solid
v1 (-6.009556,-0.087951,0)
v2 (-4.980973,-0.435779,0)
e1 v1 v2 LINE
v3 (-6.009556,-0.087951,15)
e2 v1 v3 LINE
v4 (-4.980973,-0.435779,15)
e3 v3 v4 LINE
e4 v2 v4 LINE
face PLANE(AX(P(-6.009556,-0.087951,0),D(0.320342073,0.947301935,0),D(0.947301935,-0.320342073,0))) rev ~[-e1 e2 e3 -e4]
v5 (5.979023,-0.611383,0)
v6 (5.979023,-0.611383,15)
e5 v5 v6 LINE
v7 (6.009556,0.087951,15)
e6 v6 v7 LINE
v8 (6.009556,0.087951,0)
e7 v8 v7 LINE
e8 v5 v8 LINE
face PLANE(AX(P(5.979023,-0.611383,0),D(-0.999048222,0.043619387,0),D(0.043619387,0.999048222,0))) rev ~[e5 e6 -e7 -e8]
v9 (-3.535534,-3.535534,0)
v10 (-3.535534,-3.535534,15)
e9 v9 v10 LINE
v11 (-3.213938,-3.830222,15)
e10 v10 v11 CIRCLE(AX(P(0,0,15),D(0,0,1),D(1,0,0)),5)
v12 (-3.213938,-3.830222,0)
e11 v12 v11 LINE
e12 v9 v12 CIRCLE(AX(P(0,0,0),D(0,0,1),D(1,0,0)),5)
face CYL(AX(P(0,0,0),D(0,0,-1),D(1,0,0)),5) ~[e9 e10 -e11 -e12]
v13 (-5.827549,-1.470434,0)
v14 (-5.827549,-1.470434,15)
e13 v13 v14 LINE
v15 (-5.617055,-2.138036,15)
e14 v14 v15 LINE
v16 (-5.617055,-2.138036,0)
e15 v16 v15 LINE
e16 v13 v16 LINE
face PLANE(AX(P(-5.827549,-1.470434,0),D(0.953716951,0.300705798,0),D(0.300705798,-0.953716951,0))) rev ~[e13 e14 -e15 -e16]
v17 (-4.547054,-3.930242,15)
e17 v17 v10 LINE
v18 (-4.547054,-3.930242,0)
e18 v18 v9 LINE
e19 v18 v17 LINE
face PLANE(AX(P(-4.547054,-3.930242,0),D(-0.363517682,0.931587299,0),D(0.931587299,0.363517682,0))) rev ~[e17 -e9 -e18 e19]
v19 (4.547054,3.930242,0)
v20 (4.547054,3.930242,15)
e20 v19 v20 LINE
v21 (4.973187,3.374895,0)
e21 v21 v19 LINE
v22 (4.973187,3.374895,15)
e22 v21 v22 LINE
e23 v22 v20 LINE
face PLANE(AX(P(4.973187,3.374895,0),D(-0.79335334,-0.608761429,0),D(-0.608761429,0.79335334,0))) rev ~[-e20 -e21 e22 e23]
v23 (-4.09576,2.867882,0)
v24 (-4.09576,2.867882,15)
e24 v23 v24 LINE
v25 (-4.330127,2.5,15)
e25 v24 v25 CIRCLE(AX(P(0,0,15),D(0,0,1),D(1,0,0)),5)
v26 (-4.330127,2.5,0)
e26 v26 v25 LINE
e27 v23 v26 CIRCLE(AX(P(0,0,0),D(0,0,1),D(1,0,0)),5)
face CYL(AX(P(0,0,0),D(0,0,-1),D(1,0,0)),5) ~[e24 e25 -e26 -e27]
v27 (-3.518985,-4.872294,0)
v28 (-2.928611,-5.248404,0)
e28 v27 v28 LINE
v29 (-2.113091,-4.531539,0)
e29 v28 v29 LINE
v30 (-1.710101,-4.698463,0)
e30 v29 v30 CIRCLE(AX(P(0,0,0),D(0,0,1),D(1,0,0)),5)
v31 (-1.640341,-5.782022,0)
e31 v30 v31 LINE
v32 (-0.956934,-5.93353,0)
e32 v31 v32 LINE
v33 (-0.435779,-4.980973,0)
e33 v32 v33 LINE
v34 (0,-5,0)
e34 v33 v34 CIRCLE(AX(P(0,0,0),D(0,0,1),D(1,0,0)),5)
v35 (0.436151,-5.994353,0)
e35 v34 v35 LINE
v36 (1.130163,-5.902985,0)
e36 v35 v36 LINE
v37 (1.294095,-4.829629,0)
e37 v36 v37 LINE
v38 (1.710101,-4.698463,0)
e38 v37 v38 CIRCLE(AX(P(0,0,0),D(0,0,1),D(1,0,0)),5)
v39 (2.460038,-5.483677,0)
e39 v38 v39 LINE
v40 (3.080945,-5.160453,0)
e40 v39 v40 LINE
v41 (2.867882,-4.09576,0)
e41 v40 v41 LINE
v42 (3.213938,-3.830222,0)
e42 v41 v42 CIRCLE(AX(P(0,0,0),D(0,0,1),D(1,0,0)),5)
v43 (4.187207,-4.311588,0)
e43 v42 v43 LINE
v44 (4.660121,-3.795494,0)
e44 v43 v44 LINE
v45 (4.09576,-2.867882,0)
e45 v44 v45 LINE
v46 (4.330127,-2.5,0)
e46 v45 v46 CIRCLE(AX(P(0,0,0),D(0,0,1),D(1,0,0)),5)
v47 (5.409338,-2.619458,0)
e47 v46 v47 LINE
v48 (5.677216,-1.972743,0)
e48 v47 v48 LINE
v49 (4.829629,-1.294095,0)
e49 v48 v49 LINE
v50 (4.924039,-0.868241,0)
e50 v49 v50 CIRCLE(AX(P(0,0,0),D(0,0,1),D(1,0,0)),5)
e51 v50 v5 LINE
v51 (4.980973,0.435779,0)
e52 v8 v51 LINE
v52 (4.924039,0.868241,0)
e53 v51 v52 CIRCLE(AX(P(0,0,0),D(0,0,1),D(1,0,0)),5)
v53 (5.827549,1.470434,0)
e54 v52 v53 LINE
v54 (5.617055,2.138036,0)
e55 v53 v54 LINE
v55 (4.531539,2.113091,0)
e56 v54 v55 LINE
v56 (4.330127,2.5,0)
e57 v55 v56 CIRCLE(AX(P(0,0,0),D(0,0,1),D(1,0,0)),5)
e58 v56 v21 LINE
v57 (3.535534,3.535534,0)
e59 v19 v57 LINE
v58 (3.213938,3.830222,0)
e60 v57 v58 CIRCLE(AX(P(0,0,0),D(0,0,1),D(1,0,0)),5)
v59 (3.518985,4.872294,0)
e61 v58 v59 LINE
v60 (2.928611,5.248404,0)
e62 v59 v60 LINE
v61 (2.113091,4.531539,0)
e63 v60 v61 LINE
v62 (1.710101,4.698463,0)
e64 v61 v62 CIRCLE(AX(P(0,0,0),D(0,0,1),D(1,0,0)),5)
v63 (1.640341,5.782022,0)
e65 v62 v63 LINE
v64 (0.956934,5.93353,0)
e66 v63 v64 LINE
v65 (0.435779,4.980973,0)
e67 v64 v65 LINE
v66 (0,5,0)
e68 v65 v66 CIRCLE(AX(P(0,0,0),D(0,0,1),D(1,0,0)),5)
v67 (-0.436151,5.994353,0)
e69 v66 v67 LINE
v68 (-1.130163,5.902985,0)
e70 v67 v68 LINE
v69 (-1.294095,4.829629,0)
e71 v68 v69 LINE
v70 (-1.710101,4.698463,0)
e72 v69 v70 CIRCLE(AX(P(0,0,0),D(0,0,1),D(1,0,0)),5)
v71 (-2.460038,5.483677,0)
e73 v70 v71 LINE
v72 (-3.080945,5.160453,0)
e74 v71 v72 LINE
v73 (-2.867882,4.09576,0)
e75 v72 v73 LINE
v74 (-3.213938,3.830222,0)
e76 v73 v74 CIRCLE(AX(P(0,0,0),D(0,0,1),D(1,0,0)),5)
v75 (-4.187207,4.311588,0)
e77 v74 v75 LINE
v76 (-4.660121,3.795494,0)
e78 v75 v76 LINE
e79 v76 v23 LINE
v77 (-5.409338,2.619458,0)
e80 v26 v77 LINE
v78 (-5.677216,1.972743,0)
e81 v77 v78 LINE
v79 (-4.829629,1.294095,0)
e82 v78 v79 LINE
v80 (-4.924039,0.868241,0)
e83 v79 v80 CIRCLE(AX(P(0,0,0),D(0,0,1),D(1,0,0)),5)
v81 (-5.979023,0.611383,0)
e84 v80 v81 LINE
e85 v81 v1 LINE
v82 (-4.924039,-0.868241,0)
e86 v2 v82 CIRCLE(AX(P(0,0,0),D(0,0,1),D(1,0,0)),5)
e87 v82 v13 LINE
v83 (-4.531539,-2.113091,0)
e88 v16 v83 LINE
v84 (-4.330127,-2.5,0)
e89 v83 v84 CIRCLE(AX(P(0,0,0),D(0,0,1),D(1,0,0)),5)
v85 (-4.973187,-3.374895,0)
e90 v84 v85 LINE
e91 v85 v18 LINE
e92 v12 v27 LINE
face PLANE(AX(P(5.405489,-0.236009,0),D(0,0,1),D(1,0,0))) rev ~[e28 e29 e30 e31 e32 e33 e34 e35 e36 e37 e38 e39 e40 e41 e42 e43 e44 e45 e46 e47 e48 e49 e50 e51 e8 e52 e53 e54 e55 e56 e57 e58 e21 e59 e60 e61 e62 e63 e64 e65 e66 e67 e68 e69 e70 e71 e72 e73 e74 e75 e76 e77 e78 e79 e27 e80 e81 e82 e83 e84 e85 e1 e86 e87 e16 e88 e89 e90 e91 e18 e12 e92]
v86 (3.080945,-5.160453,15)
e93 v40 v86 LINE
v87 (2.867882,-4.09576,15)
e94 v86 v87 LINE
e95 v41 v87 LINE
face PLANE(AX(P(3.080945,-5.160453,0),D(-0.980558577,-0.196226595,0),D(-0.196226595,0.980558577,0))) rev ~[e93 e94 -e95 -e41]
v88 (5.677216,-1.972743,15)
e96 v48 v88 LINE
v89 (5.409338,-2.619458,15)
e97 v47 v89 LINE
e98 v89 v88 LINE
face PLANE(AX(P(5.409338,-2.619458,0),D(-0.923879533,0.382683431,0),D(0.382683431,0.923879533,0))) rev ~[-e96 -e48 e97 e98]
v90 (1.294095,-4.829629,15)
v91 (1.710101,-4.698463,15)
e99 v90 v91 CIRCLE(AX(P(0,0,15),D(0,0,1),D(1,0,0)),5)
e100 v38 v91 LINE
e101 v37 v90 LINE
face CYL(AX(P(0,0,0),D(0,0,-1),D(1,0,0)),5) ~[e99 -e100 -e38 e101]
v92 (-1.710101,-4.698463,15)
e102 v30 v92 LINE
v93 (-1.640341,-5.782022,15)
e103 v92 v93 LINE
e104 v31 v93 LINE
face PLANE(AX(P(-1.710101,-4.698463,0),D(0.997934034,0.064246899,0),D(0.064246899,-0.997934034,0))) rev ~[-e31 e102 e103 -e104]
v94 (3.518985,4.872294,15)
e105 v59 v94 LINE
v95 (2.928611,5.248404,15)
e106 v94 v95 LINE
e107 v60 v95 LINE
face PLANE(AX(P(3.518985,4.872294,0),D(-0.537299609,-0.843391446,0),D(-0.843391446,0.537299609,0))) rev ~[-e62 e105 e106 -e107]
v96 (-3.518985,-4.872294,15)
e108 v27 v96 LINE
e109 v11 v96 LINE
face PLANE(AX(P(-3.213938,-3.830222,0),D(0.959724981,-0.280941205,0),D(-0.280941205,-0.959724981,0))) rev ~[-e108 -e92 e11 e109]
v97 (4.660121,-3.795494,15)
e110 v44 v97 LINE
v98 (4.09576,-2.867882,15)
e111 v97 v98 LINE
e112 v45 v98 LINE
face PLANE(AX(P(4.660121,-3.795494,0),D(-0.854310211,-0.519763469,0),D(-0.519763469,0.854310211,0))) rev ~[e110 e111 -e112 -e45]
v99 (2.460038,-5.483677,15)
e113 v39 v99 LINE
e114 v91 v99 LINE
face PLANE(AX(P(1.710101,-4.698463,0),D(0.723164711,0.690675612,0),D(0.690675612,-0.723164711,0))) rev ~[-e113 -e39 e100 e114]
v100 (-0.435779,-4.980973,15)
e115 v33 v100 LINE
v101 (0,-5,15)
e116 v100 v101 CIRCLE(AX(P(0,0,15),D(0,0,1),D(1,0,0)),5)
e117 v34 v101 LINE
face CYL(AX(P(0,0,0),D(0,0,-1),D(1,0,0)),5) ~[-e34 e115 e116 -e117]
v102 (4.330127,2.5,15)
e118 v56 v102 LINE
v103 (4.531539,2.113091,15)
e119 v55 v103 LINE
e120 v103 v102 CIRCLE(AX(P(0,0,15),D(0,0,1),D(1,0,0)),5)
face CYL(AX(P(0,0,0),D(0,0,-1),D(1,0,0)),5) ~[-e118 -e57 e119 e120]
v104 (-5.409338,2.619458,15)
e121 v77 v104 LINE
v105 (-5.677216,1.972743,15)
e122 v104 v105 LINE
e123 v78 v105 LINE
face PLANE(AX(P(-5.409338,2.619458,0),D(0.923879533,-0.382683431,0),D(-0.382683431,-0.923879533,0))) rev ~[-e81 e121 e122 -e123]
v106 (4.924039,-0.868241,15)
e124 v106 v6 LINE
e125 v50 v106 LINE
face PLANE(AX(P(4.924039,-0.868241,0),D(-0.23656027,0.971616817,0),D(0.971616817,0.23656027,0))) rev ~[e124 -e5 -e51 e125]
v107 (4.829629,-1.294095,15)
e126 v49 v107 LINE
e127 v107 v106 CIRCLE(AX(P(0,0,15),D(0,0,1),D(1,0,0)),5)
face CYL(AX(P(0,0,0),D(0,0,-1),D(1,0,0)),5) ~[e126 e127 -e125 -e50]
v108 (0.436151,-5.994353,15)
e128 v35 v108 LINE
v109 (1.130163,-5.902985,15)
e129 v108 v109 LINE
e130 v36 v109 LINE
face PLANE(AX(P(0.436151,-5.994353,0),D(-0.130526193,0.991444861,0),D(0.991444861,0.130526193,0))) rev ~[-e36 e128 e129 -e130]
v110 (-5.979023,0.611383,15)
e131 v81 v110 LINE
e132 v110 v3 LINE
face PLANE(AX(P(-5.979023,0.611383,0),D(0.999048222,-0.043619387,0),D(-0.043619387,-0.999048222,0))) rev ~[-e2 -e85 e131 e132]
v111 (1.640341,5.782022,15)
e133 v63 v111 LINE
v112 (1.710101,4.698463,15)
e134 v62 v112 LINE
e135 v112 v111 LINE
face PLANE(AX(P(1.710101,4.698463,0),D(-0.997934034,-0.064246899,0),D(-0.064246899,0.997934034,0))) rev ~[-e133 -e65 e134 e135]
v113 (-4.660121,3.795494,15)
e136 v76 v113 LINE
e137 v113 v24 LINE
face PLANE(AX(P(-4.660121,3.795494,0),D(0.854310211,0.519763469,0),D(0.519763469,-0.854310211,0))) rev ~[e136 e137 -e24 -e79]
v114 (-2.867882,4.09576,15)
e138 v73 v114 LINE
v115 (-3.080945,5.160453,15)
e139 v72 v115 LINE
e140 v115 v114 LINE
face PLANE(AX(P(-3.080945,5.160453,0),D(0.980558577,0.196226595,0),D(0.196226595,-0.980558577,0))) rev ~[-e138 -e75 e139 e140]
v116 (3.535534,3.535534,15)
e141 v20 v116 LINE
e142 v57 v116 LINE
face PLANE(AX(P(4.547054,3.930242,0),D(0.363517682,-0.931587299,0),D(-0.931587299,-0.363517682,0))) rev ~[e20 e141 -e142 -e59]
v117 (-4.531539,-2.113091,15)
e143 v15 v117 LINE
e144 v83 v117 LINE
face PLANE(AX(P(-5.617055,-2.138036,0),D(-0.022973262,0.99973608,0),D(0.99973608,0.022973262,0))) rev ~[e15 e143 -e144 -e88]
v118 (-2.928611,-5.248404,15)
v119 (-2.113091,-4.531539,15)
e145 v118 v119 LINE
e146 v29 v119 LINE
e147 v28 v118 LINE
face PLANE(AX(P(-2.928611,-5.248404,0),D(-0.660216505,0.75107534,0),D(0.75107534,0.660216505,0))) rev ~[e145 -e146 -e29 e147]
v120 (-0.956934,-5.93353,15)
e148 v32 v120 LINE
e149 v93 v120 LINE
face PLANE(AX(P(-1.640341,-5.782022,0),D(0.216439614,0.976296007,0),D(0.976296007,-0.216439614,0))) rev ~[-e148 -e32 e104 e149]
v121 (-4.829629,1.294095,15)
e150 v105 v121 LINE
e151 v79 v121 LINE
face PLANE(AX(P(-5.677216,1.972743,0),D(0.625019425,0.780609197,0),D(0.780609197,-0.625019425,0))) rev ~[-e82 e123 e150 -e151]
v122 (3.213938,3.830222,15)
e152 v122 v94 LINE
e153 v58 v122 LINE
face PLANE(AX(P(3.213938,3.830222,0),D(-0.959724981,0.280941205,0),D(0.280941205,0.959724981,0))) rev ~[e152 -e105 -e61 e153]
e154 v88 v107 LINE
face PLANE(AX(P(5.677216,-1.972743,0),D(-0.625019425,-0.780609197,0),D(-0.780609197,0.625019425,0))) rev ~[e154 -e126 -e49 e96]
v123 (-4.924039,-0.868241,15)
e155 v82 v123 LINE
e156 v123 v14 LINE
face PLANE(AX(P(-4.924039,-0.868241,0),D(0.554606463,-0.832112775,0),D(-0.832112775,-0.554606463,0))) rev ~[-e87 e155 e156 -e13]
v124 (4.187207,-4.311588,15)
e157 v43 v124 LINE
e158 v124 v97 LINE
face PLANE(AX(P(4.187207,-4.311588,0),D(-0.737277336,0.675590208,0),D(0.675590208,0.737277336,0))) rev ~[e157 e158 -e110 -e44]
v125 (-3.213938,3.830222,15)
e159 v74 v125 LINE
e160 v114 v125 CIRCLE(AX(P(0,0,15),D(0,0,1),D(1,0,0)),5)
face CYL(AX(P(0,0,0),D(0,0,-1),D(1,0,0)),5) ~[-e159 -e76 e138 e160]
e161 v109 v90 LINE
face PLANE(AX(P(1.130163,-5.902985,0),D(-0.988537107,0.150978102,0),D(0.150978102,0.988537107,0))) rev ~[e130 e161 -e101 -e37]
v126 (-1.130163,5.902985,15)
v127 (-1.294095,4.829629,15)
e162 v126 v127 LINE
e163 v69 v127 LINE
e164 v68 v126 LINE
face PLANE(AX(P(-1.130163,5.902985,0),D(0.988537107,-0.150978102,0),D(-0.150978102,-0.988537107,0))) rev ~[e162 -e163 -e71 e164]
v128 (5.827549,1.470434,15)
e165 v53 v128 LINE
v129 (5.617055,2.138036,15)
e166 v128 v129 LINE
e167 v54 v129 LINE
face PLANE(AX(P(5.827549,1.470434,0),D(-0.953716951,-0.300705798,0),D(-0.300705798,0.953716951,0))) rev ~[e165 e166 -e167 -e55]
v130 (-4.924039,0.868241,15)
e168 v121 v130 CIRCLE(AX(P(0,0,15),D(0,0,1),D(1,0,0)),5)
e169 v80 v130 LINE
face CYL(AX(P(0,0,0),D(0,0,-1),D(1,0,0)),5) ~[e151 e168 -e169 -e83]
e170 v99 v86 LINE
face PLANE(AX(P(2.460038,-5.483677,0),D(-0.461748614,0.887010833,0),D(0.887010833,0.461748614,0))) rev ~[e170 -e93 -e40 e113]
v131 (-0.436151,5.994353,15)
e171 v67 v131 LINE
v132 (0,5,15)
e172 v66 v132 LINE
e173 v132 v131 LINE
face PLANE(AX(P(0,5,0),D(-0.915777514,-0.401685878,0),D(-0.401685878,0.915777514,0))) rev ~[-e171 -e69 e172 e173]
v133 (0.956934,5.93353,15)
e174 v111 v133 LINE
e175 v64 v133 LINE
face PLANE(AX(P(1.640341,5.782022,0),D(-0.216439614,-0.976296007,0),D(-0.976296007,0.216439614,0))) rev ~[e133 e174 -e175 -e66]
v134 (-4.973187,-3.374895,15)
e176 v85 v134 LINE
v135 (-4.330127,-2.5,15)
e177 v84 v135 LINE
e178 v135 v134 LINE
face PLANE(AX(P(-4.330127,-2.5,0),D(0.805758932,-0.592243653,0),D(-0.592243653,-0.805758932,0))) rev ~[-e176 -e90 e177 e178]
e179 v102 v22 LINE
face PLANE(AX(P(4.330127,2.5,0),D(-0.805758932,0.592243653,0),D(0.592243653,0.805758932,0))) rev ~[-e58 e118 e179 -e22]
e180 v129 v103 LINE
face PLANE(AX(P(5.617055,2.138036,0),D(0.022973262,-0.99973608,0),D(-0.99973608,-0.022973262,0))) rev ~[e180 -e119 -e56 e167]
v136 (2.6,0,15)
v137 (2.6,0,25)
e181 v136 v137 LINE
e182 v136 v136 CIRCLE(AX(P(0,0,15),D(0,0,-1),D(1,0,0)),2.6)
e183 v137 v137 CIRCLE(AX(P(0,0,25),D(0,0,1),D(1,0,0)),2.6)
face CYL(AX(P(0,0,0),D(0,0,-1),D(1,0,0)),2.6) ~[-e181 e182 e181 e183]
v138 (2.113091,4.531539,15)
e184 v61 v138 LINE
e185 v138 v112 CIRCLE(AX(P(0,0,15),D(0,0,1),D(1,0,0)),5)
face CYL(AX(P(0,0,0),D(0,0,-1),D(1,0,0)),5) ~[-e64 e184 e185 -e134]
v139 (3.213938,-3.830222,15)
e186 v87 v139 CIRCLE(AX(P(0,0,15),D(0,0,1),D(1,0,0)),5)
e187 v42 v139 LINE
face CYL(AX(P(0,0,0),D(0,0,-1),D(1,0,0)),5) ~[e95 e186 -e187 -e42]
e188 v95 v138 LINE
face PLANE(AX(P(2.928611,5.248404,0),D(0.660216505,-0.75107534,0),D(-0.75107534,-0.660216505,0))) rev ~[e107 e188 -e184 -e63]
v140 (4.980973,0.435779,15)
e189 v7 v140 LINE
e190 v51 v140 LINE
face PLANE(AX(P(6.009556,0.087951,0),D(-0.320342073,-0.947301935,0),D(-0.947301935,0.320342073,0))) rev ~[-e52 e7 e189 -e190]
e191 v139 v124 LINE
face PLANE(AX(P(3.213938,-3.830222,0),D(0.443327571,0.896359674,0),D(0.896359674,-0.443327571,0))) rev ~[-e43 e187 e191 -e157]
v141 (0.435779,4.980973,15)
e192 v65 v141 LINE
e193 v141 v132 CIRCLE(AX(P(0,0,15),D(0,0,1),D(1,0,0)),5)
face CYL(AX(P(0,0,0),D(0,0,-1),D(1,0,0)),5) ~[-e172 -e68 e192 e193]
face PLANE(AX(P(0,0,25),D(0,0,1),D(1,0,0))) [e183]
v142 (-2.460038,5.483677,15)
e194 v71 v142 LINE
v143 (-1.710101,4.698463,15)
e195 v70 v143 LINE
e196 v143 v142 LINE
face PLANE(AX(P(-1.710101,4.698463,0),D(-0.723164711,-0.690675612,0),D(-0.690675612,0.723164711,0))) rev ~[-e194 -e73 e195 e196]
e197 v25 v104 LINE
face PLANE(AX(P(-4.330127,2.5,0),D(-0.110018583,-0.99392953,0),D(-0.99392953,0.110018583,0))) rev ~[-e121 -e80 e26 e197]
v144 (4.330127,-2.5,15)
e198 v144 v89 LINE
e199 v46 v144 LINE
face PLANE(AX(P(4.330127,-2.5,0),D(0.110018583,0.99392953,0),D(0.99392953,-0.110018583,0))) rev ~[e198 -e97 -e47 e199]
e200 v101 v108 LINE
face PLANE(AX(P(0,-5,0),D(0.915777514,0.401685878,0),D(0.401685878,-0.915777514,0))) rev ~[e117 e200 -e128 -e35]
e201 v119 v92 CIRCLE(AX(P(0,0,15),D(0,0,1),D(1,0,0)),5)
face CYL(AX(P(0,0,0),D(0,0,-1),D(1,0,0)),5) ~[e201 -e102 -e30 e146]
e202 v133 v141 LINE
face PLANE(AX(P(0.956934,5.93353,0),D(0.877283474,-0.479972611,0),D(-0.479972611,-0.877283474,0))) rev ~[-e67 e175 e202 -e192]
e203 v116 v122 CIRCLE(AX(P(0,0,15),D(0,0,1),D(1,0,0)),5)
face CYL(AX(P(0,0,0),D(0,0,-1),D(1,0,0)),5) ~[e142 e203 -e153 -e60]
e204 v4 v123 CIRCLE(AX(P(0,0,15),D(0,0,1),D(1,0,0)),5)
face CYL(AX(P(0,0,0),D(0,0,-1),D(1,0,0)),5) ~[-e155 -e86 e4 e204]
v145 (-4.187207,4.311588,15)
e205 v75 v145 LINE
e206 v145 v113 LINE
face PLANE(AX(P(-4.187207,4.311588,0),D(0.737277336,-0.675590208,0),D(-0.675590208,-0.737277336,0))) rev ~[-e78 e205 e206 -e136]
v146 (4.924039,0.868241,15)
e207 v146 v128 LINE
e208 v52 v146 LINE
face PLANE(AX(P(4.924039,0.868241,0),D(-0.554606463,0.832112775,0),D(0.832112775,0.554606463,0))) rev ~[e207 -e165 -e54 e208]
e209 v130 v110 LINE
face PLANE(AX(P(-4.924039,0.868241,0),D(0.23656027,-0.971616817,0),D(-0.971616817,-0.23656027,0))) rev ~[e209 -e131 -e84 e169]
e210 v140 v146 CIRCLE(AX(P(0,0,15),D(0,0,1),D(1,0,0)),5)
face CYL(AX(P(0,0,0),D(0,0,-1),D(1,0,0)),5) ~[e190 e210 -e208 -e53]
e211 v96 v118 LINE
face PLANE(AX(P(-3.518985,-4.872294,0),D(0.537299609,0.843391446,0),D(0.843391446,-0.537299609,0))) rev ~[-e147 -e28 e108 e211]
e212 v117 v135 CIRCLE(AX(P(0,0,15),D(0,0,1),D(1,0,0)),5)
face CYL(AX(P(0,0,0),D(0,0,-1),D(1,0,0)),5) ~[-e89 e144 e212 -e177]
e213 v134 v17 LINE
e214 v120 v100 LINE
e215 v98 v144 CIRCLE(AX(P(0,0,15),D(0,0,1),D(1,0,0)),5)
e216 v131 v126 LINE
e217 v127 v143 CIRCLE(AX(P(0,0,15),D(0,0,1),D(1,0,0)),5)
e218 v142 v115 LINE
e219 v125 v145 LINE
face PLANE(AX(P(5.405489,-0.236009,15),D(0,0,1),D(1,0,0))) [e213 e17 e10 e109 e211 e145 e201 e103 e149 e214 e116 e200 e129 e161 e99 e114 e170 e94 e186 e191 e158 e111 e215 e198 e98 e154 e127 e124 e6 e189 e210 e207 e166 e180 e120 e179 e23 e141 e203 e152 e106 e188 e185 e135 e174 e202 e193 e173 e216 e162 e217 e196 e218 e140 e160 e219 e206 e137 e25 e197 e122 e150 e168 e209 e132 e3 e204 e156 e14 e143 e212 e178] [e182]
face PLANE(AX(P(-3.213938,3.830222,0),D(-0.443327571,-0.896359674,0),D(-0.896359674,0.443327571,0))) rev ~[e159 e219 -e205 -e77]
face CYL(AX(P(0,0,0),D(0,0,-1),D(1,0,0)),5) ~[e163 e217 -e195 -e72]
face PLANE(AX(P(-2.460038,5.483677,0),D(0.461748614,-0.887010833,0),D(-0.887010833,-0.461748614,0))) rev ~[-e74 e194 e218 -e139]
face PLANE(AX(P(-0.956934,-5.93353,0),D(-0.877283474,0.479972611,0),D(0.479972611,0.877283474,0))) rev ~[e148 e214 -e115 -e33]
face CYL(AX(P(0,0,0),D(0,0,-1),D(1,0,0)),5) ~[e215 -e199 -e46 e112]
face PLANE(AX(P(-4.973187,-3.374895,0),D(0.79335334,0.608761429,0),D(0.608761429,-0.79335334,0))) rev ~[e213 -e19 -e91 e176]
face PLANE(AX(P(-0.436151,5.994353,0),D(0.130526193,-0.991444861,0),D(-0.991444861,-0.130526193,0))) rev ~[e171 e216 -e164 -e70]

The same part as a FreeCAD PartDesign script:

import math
import FreeCAD as App
import Part
import Sketcher

V = App.Vector
Q = App.Units.Quantity

doc = App.newDocument("Part")
body = doc.addObject("PartDesign::Body", "Body")

# Sketch on XY plane
sketch1 = body.newObject("Sketcher::SketchObject", "Sketch")
sketch1.AttachmentSupport = (doc.getObject("XY_Plane"), [""])
sketch1.MapMode = "FlatFace"
sketch1.addGeometry(Part.Circle(V(0, 0, 0), V(0, 0, 1), 5), False)
sketch1.addConstraint(Sketcher.Constraint("Coincident", 0, 3, -1, 1))
sketch1.addConstraint(Sketcher.Constraint("Diameter", 0, Q("10 mm")))
pad1 = body.newObject("PartDesign::Pad", "Pad")
pad1.Profile = sketch1
pad1.Length = 15

# Sketch on XY plane
sketch2 = body.newObject("Sketcher::SketchObject", "Sketch001")
sketch2.AttachmentSupport = (doc.getObject("XY_Plane"), [""])
sketch2.MapMode = "FlatFace"
sketch2.addGeometry(Part.Circle(V(0, 0, 0), V(0, 0, 1), 2.6), False)
sketch2.addConstraint(Sketcher.Constraint("Coincident", 0, 3, -1, 1))
sketch2.addConstraint(Sketcher.Constraint("Diameter", 0, Q("5.2 mm")))
pad2 = body.newObject("PartDesign::Pad", "Pad001")
pad2.Profile = sketch2
pad2.Length = 25

# Sketch on XY plane
sketch3 = body.newObject("Sketcher::SketchObject", "Sketch002")
sketch3.AttachmentSupport = (doc.getObject("XY_Plane"), [""])
sketch3.MapMode = "FlatFace"
sketch3.addGeometry(Part.LineSegment(V(-1.130163, 5.902985, 0), V(-0.436151, 5.994353, 0)), False)
sketch3.addGeometry(Part.LineSegment(V(-0.436151, 5.994353, 0), V(0, 5, 0)), False)
sketch3.addGeometry(Part.ArcOfCircle(Part.Circle(V(0, 0, 0), V(0, 0, 1), 5), math.radians(90), math.radians(105)), False)
sketch3.addGeometry(Part.LineSegment(V(-1.294095, 4.829629, 0), V(-1.130163, 5.902985, 0)), False)
sketch3.addGeometry(Part.LineSegment(V(-3.080945, 5.160453, 0), V(-2.460038, 5.483677, 0)), False)
sketch3.addGeometry(Part.LineSegment(V(-2.460038, 5.483677, 0), V(-1.710101, 4.698463, 0)), False)
sketch3.addGeometry(Part.ArcOfCircle(Part.Circle(V(0, 0, 0), V(0, 0, 1), 5), math.radians(110), math.radians(125)), False)
sketch3.addGeometry(Part.LineSegment(V(-2.867882, 4.09576, 0), V(-3.080945, 5.160453, 0)), False)
sketch3.addGeometry(Part.LineSegment(V(-4.660121, 3.795494, 0), V(-4.187207, 4.311588, 0)), False)
sketch3.addGeometry(Part.LineSegment(V(-4.187207, 4.311588, 0), V(-3.213938, 3.830222, 0)), False)
sketch3.addGeometry(Part.ArcOfCircle(Part.Circle(V(0, 0, 0), V(0, 0, 1), 5), math.radians(130), math.radians(145)), False)
sketch3.addGeometry(Part.LineSegment(V(-4.09576, 2.867882, 0), V(-4.660121, 3.795494, 0)), False)
sketch3.addGeometry(Part.LineSegment(V(-5.677216, 1.972743, 0), V(-5.409338, 2.619458, 0)), False)
sketch3.addGeometry(Part.LineSegment(V(-5.409338, 2.619458, 0), V(-4.330127, 2.5, 0)), False)
sketch3.addGeometry(Part.ArcOfCircle(Part.Circle(V(0, 0, 0), V(0, 0, 1), 5), math.radians(150), math.radians(165)), False)
sketch3.addGeometry(Part.LineSegment(V(-4.829629, 1.294095, 0), V(-5.677216, 1.972743, 0)), False)
sketch3.addGeometry(Part.LineSegment(V(-6.009556, -0.087951, 0), V(-5.979023, 0.611383, 0)), False)
sketch3.addGeometry(Part.LineSegment(V(-5.979023, 0.611383, 0), V(-4.924039, 0.868241, 0)), False)
sketch3.addGeometry(Part.ArcOfCircle(Part.Circle(V(0, 0, 0), V(0, 0, 1), 5), math.radians(170), math.radians(185)), False)
sketch3.addGeometry(Part.LineSegment(V(-4.980973, -0.435779, 0), V(-6.009556, -0.087951, 0)), False)
sketch3.addGeometry(Part.LineSegment(V(-5.617055, -2.138036, 0), V(-5.827549, -1.470434, 0)), False)
sketch3.addGeometry(Part.LineSegment(V(-5.827549, -1.470434, 0), V(-4.924039, -0.868241, 0)), False)
sketch3.addGeometry(Part.ArcOfCircle(Part.Circle(V(0, 0, 0), V(0, 0, 1), 5), math.radians(-170), math.radians(-155)), False)
sketch3.addGeometry(Part.LineSegment(V(-4.531539, -2.113091, 0), V(-5.617055, -2.138036, 0)), False)
sketch3.addGeometry(Part.LineSegment(V(-4.547054, -3.930242, 0), V(-4.973187, -3.374895, 0)), False)
sketch3.addGeometry(Part.LineSegment(V(-4.973187, -3.374895, 0), V(-4.330127, -2.5, 0)), False)
sketch3.addGeometry(Part.ArcOfCircle(Part.Circle(V(0, 0, 0), V(0, 0, 1), 5), math.radians(-150), math.radians(-135)), False)
sketch3.addGeometry(Part.LineSegment(V(-3.535534, -3.535534, 0), V(-4.547054, -3.930242, 0)), False)
sketch3.addGeometry(Part.LineSegment(V(-2.928611, -5.248404, 0), V(-3.518985, -4.872294, 0)), False)
sketch3.addGeometry(Part.LineSegment(V(-3.518985, -4.872294, 0), V(-3.213938, -3.830222, 0)), False)
sketch3.addGeometry(Part.ArcOfCircle(Part.Circle(V(0, 0, 0), V(0, 0, 1), 5), math.radians(-130), math.radians(-115)), False)
sketch3.addGeometry(Part.LineSegment(V(-2.113091, -4.531539, 0), V(-2.928611, -5.248404, 0)), False)
sketch3.addGeometry(Part.LineSegment(V(-0.956934, -5.93353, 0), V(-1.640341, -5.782022, 0)), False)
sketch3.addGeometry(Part.LineSegment(V(-1.640341, -5.782022, 0), V(-1.710101, -4.698463, 0)), False)
sketch3.addGeometry(Part.ArcOfCircle(Part.Circle(V(0, 0, 0), V(0, 0, 1), 5), math.radians(-110), math.radians(-95)), False)
sketch3.addGeometry(Part.LineSegment(V(-0.435779, -4.980973, 0), V(-0.956934, -5.93353, 0)), False)
sketch3.addGeometry(Part.LineSegment(V(1.130163, -5.902985, 0), V(0.436151, -5.994353, 0)), False)
sketch3.addGeometry(Part.LineSegment(V(0.436151, -5.994353, 0), V(0, -5, 0)), False)
sketch3.addGeometry(Part.ArcOfCircle(Part.Circle(V(0, 0, 0), V(0, 0, 1), 5), math.radians(-90), math.radians(-75)), False)
sketch3.addGeometry(Part.LineSegment(V(1.294095, -4.829629, 0), V(1.130163, -5.902985, 0)), False)
sketch3.addGeometry(Part.LineSegment(V(3.080945, -5.160453, 0), V(2.460038, -5.483677, 0)), False)
sketch3.addGeometry(Part.LineSegment(V(2.460038, -5.483677, 0), V(1.710101, -4.698463, 0)), False)
sketch3.addGeometry(Part.ArcOfCircle(Part.Circle(V(0, 0, 0), V(0, 0, 1), 5), math.radians(-70), math.radians(-55)), False)
sketch3.addGeometry(Part.LineSegment(V(2.867882, -4.09576, 0), V(3.080945, -5.160453, 0)), False)
sketch3.addGeometry(Part.LineSegment(V(4.660121, -3.795494, 0), V(4.187207, -4.311588, 0)), False)
sketch3.addGeometry(Part.LineSegment(V(4.187207, -4.311588, 0), V(3.213938, -3.830222, 0)), False)
sketch3.addGeometry(Part.ArcOfCircle(Part.Circle(V(0, 0, 0), V(0, 0, 1), 5), math.radians(-50), math.radians(-35)), False)
sketch3.addGeometry(Part.LineSegment(V(4.09576, -2.867882, 0), V(4.660121, -3.795494, 0)), False)
sketch3.addGeometry(Part.LineSegment(V(5.677216, -1.972743, 0), V(5.409338, -2.619458, 0)), False)
sketch3.addGeometry(Part.LineSegment(V(5.409338, -2.619458, 0), V(4.330127, -2.5, 0)), False)
sketch3.addGeometry(Part.ArcOfCircle(Part.Circle(V(0, 0, 0), V(0, 0, 1), 5), math.radians(-30), math.radians(-15)), False)
sketch3.addGeometry(Part.LineSegment(V(4.829629, -1.294095, 0), V(5.677216, -1.972743, 0)), False)
sketch3.addGeometry(Part.LineSegment(V(6.009556, 0.087951, 0), V(5.979023, -0.611383, 0)), False)
sketch3.addGeometry(Part.LineSegment(V(5.979023, -0.611383, 0), V(4.924039, -0.868241, 0)), False)
sketch3.addGeometry(Part.ArcOfCircle(Part.Circle(V(0, 0, 0), V(0, 0, 1), 5), math.radians(-10), math.radians(5)), False)
sketch3.addGeometry(Part.LineSegment(V(4.980973, 0.435779, 0), V(6.009556, 0.087951, 0)), False)
sketch3.addGeometry(Part.LineSegment(V(5.617055, 2.138036, 0), V(5.827549, 1.470434, 0)), False)
sketch3.addGeometry(Part.LineSegment(V(5.827549, 1.470434, 0), V(4.924039, 0.868241, 0)), False)
sketch3.addGeometry(Part.ArcOfCircle(Part.Circle(V(0, 0, 0), V(0, 0, 1), 5), math.radians(10), math.radians(25)), False)
sketch3.addGeometry(Part.LineSegment(V(4.531539, 2.113091, 0), V(5.617055, 2.138036, 0)), False)
sketch3.addGeometry(Part.LineSegment(V(4.547054, 3.930242, 0), V(4.973187, 3.374895, 0)), False)
sketch3.addGeometry(Part.LineSegment(V(4.973187, 3.374895, 0), V(4.330127, 2.5, 0)), False)
sketch3.addGeometry(Part.ArcOfCircle(Part.Circle(V(0, 0, 0), V(0, 0, 1), 5), math.radians(30), math.radians(45)), False)
sketch3.addGeometry(Part.LineSegment(V(3.535534, 3.535534, 0), V(4.547054, 3.930242, 0)), False)
sketch3.addGeometry(Part.LineSegment(V(2.928611, 5.248404, 0), V(3.518985, 4.872294, 0)), False)
sketch3.addGeometry(Part.LineSegment(V(3.518985, 4.872294, 0), V(3.213938, 3.830222, 0)), False)
sketch3.addGeometry(Part.ArcOfCircle(Part.Circle(V(0, 0, 0), V(0, 0, 1), 5), math.radians(50), math.radians(65)), False)
sketch3.addGeometry(Part.LineSegment(V(2.113091, 4.531539, 0), V(2.928611, 5.248404, 0)), False)
sketch3.addGeometry(Part.LineSegment(V(0.956934, 5.93353, 0), V(1.640341, 5.782022, 0)), False)
sketch3.addGeometry(Part.LineSegment(V(1.640341, 5.782022, 0), V(1.710101, 4.698463, 0)), False)
sketch3.addGeometry(Part.ArcOfCircle(Part.Circle(V(0, 0, 0), V(0, 0, 1), 5), math.radians(70), math.radians(85)), False)
sketch3.addGeometry(Part.LineSegment(V(0.435779, 4.980973, 0), V(0.956934, 5.93353, 0)), False)
sketch3.addConstraint(Sketcher.Constraint("Coincident", 0, 2, 1, 1))
sketch3.addConstraint(Sketcher.Constraint("Coincident", 1, 2, 2, 1))
sketch3.addConstraint(Sketcher.Constraint("Coincident", 2, 2, 3, 1))
sketch3.addConstraint(Sketcher.Constraint("Coincident", 3, 2, 0, 1))
sketch3.addConstraint(Sketcher.Constraint("Coincident", 4, 2, 5, 1))
sketch3.addConstraint(Sketcher.Constraint("Coincident", 5, 2, 6, 1))
sketch3.addConstraint(Sketcher.Constraint("Coincident", 6, 2, 7, 1))
sketch3.addConstraint(Sketcher.Constraint("Coincident", 7, 2, 4, 1))
sketch3.addConstraint(Sketcher.Constraint("Coincident", 8, 2, 9, 1))
sketch3.addConstraint(Sketcher.Constraint("Coincident", 9, 2, 10, 1))
sketch3.addConstraint(Sketcher.Constraint("Coincident", 10, 2, 11, 1))
sketch3.addConstraint(Sketcher.Constraint("Coincident", 11, 2, 8, 1))
sketch3.addConstraint(Sketcher.Constraint("Coincident", 12, 2, 13, 1))
sketch3.addConstraint(Sketcher.Constraint("Coincident", 13, 2, 14, 1))
sketch3.addConstraint(Sketcher.Constraint("Coincident", 14, 2, 15, 1))
sketch3.addConstraint(Sketcher.Constraint("Coincident", 15, 2, 12, 1))
sketch3.addConstraint(Sketcher.Constraint("Coincident", 16, 2, 17, 1))
sketch3.addConstraint(Sketcher.Constraint("Coincident", 17, 2, 18, 1))
sketch3.addConstraint(Sketcher.Constraint("Coincident", 18, 2, 19, 1))
sketch3.addConstraint(Sketcher.Constraint("Coincident", 19, 2, 16, 1))
sketch3.addConstraint(Sketcher.Constraint("Coincident", 20, 2, 21, 1))
sketch3.addConstraint(Sketcher.Constraint("Coincident", 21, 2, 22, 1))
sketch3.addConstraint(Sketcher.Constraint("Coincident", 22, 2, 23, 1))
sketch3.addConstraint(Sketcher.Constraint("Coincident", 23, 2, 20, 1))
sketch3.addConstraint(Sketcher.Constraint("Coincident", 24, 2, 25, 1))
sketch3.addConstraint(Sketcher.Constraint("Coincident", 25, 2, 26, 1))
sketch3.addConstraint(Sketcher.Constraint("Coincident", 26, 2, 27, 1))
sketch3.addConstraint(Sketcher.Constraint("Coincident", 27, 2, 24, 1))
sketch3.addConstraint(Sketcher.Constraint("Coincident", 28, 2, 29, 1))
sketch3.addConstraint(Sketcher.Constraint("Coincident", 29, 2, 30, 1))
sketch3.addConstraint(Sketcher.Constraint("Coincident", 30, 2, 31, 1))
sketch3.addConstraint(Sketcher.Constraint("Coincident", 31, 2, 28, 1))
sketch3.addConstraint(Sketcher.Constraint("Coincident", 32, 2, 33, 1))
sketch3.addConstraint(Sketcher.Constraint("Coincident", 33, 2, 34, 1))
sketch3.addConstraint(Sketcher.Constraint("Coincident", 34, 2, 35, 1))
sketch3.addConstraint(Sketcher.Constraint("Coincident", 35, 2, 32, 1))
sketch3.addConstraint(Sketcher.Constraint("Coincident", 36, 2, 37, 1))
sketch3.addConstraint(Sketcher.Constraint("Coincident", 37, 2, 38, 1))
sketch3.addConstraint(Sketcher.Constraint("Coincident", 38, 2, 39, 1))
sketch3.addConstraint(Sketcher.Constraint("Coincident", 39, 2, 36, 1))
sketch3.addConstraint(Sketcher.Constraint("Coincident", 40, 2, 41, 1))
sketch3.addConstraint(Sketcher.Constraint("Coincident", 41, 2, 42, 1))
sketch3.addConstraint(Sketcher.Constraint("Coincident", 42, 2, 43, 1))
sketch3.addConstraint(Sketcher.Constraint("Coincident", 43, 2, 40, 1))
sketch3.addConstraint(Sketcher.Constraint("Coincident", 44, 2, 45, 1))
sketch3.addConstraint(Sketcher.Constraint("Coincident", 45, 2, 46, 1))
sketch3.addConstraint(Sketcher.Constraint("Coincident", 46, 2, 47, 1))
sketch3.addConstraint(Sketcher.Constraint("Coincident", 47, 2, 44, 1))
sketch3.addConstraint(Sketcher.Constraint("Coincident", 48, 2, 49, 1))
sketch3.addConstraint(Sketcher.Constraint("Coincident", 49, 2, 50, 1))
sketch3.addConstraint(Sketcher.Constraint("Coincident", 50, 2, 51, 1))
sketch3.addConstraint(Sketcher.Constraint("Coincident", 51, 2, 48, 1))
sketch3.addConstraint(Sketcher.Constraint("Coincident", 52, 2, 53, 1))
sketch3.addConstraint(Sketcher.Constraint("Coincident", 53, 2, 54, 1))
sketch3.addConstraint(Sketcher.Constraint("Coincident", 54, 2, 55, 1))
sketch3.addConstraint(Sketcher.Constraint("Coincident", 55, 2, 52, 1))
sketch3.addConstraint(Sketcher.Constraint("Coincident", 56, 2, 57, 1))
sketch3.addConstraint(Sketcher.Constraint("Coincident", 57, 2, 58, 1))
sketch3.addConstraint(Sketcher.Constraint("Coincident", 58, 2, 59, 1))
sketch3.addConstraint(Sketcher.Constraint("Coincident", 59, 2, 56, 1))
sketch3.addConstraint(Sketcher.Constraint("Coincident", 60, 2, 61, 1))
sketch3.addConstraint(Sketcher.Constraint("Coincident", 61, 2, 62, 1))
sketch3.addConstraint(Sketcher.Constraint("Coincident", 62, 2, 63, 1))
sketch3.addConstraint(Sketcher.Constraint("Coincident", 63, 2, 60, 1))
sketch3.addConstraint(Sketcher.Constraint("Coincident", 64, 2, 65, 1))
sketch3.addConstraint(Sketcher.Constraint("Coincident", 65, 2, 66, 1))
sketch3.addConstraint(Sketcher.Constraint("Coincident", 66, 2, 67, 1))
sketch3.addConstraint(Sketcher.Constraint("Coincident", 67, 2, 64, 1))
sketch3.addConstraint(Sketcher.Constraint("Coincident", 68, 2, 69, 1))
sketch3.addConstraint(Sketcher.Constraint("Coincident", 69, 2, 70, 1))
sketch3.addConstraint(Sketcher.Constraint("Coincident", 70, 2, 71, 1))
sketch3.addConstraint(Sketcher.Constraint("Coincident", 71, 2, 68, 1))
sketch3.addConstraint(Sketcher.Constraint("Coincident", 2, 3, -1, 1))
sketch3.addConstraint(Sketcher.Constraint("Coincident", 6, 3, -1, 1))
sketch3.addConstraint(Sketcher.Constraint("Coincident", 10, 3, -1, 1))
sketch3.addConstraint(Sketcher.Constraint("Coincident", 14, 3, -1, 1))
sketch3.addConstraint(Sketcher.Constraint("Coincident", 18, 3, -1, 1))
sketch3.addConstraint(Sketcher.Constraint("Coincident", 22, 3, -1, 1))
sketch3.addConstraint(Sketcher.Constraint("Coincident", 26, 3, -1, 1))
sketch3.addConstraint(Sketcher.Constraint("Coincident", 30, 3, -1, 1))
sketch3.addConstraint(Sketcher.Constraint("Coincident", 34, 3, -1, 1))
sketch3.addConstraint(Sketcher.Constraint("Coincident", 38, 3, -1, 1))
sketch3.addConstraint(Sketcher.Constraint("Coincident", 42, 3, -1, 1))
sketch3.addConstraint(Sketcher.Constraint("Coincident", 46, 3, -1, 1))
sketch3.addConstraint(Sketcher.Constraint("Coincident", 50, 3, -1, 1))
sketch3.addConstraint(Sketcher.Constraint("Coincident", 54, 3, -1, 1))
sketch3.addConstraint(Sketcher.Constraint("Coincident", 58, 3, -1, 1))
sketch3.addConstraint(Sketcher.Constraint("Coincident", 62, 3, -1, 1))
sketch3.addConstraint(Sketcher.Constraint("Coincident", 66, 3, -1, 1))
sketch3.addConstraint(Sketcher.Constraint("Coincident", 70, 3, -1, 1))
sketch3.addConstraint(Sketcher.Constraint("Equal", 2, 6))
sketch3.addConstraint(Sketcher.Constraint("Equal", 6, 10))
sketch3.addConstraint(Sketcher.Constraint("Equal", 10, 14))
sketch3.addConstraint(Sketcher.Constraint("Equal", 14, 18))
sketch3.addConstraint(Sketcher.Constraint("Equal", 18, 22))
sketch3.addConstraint(Sketcher.Constraint("Equal", 22, 26))
sketch3.addConstraint(Sketcher.Constraint("Equal", 26, 30))
sketch3.addConstraint(Sketcher.Constraint("Equal", 30, 34))
sketch3.addConstraint(Sketcher.Constraint("Equal", 34, 38))
sketch3.addConstraint(Sketcher.Constraint("Equal", 38, 42))
sketch3.addConstraint(Sketcher.Constraint("Equal", 42, 46))
sketch3.addConstraint(Sketcher.Constraint("Equal", 46, 50))
sketch3.addConstraint(Sketcher.Constraint("Equal", 50, 54))
sketch3.addConstraint(Sketcher.Constraint("Equal", 54, 58))
sketch3.addConstraint(Sketcher.Constraint("Equal", 58, 62))
sketch3.addConstraint(Sketcher.Constraint("Equal", 62, 66))
sketch3.addConstraint(Sketcher.Constraint("Equal", 66, 70))
sketch3.addConstraint(Sketcher.Constraint("Symmetric", 0, 2, 36, 2, -1, 1))
sketch3.addConstraint(Sketcher.Constraint("Symmetric", 3, 2, 39, 2, -1, 1))
sketch3.addConstraint(Sketcher.Constraint("Symmetric", 4, 2, 40, 2, -1, 1))
sketch3.addConstraint(Sketcher.Constraint("Symmetric", 7, 2, 43, 2, -1, 1))
sketch3.addConstraint(Sketcher.Constraint("Symmetric", 8, 2, 44, 2, -1, 1))
sketch3.addConstraint(Sketcher.Constraint("Symmetric", 11, 2, 47, 2, -1, 1))
sketch3.addConstraint(Sketcher.Constraint("Symmetric", 12, 2, 48, 2, -1, 1))
sketch3.addConstraint(Sketcher.Constraint("Symmetric", 15, 2, 51, 2, -1, 1))
sketch3.addConstraint(Sketcher.Constraint("Symmetric", 16, 2, 52, 2, -1, 1))
sketch3.addConstraint(Sketcher.Constraint("Symmetric", 19, 2, 55, 2, -1, 1))
sketch3.addConstraint(Sketcher.Constraint("Symmetric", 20, 2, 56, 2, -1, 1))
sketch3.addConstraint(Sketcher.Constraint("Symmetric", 23, 2, 59, 2, -1, 1))
sketch3.addConstraint(Sketcher.Constraint("Symmetric", 24, 2, 60, 2, -1, 1))
sketch3.addConstraint(Sketcher.Constraint("Symmetric", 27, 2, 63, 2, -1, 1))
sketch3.addConstraint(Sketcher.Constraint("Symmetric", 28, 2, 64, 2, -1, 1))
sketch3.addConstraint(Sketcher.Constraint("Symmetric", 31, 2, 67, 2, -1, 1))
sketch3.addConstraint(Sketcher.Constraint("Symmetric", 32, 2, 68, 2, -1, 1))
sketch3.addConstraint(Sketcher.Constraint("Symmetric", 35, 2, 71, 2, -1, 1))
sketch3.addConstraint(Sketcher.Constraint("PointOnObject", 1, 2, -2))
sketch3.addConstraint(Sketcher.Constraint("PointOnObject", 37, 2, -2))
sketch3.addConstraint(Sketcher.Constraint("Parallel", 3, 39))
sketch3.addConstraint(Sketcher.Constraint("Parallel", 5, 41))
sketch3.addConstraint(Sketcher.Constraint("Parallel", 7, 43))
sketch3.addConstraint(Sketcher.Constraint("Parallel", 9, 45))
sketch3.addConstraint(Sketcher.Constraint("Parallel", 11, 47))
sketch3.addConstraint(Sketcher.Constraint("Parallel", 13, 49))
sketch3.addConstraint(Sketcher.Constraint("Parallel", 15, 51))
sketch3.addConstraint(Sketcher.Constraint("Parallel", 17, 53))
sketch3.addConstraint(Sketcher.Constraint("Parallel", 19, 55))
sketch3.addConstraint(Sketcher.Constraint("Parallel", 21, 57))
sketch3.addConstraint(Sketcher.Constraint("Parallel", 23, 59))
sketch3.addConstraint(Sketcher.Constraint("Parallel", 25, 61))
sketch3.addConstraint(Sketcher.Constraint("Parallel", 27, 63))
sketch3.addConstraint(Sketcher.Constraint("Parallel", 29, 65))
sketch3.addConstraint(Sketcher.Constraint("Parallel", 31, 67))
sketch3.addConstraint(Sketcher.Constraint("Parallel", 33, 69))
sketch3.addConstraint(Sketcher.Constraint("Parallel", 35, 71))
sketch3.addConstraint(Sketcher.Constraint("Horizontal", 33, 2, 41, 2))
sketch3.addConstraint(Sketcher.Constraint("Horizontal", 29, 2, 45, 2))
sketch3.addConstraint(Sketcher.Constraint("Horizontal", 25, 2, 49, 2))
sketch3.addConstraint(Sketcher.Constraint("Horizontal", 21, 2, 53, 2))
sketch3.addConstraint(Sketcher.Constraint("Equal", 1, 3))
sketch3.addConstraint(Sketcher.Constraint("Equal", 0, 4))
sketch3.addConstraint(Sketcher.Constraint("Equal", 3, 5))
sketch3.addConstraint(Sketcher.Constraint("Equal", 5, 7))
sketch3.addConstraint(Sketcher.Constraint("Equal", 4, 8))
sketch3.addConstraint(Sketcher.Constraint("Equal", 7, 9))
sketch3.addConstraint(Sketcher.Constraint("Equal", 9, 11))
sketch3.addConstraint(Sketcher.Constraint("Equal", 8, 12))
sketch3.addConstraint(Sketcher.Constraint("Equal", 11, 13))
sketch3.addConstraint(Sketcher.Constraint("Equal", 13, 15))
sketch3.addConstraint(Sketcher.Constraint("Equal", 12, 16))
sketch3.addConstraint(Sketcher.Constraint("Equal", 15, 17))
sketch3.addConstraint(Sketcher.Constraint("Equal", 17, 19))
sketch3.addConstraint(Sketcher.Constraint("Equal", 16, 20))
sketch3.addConstraint(Sketcher.Constraint("Equal", 19, 21))
sketch3.addConstraint(Sketcher.Constraint("Equal", 21, 23))
sketch3.addConstraint(Sketcher.Constraint("Equal", 20, 24))
sketch3.addConstraint(Sketcher.Constraint("Equal", 23, 25))
sketch3.addConstraint(Sketcher.Constraint("Equal", 25, 27))
sketch3.addConstraint(Sketcher.Constraint("Equal", 24, 28))
sketch3.addConstraint(Sketcher.Constraint("Equal", 27, 29))
sketch3.addConstraint(Sketcher.Constraint("Equal", 29, 31))
sketch3.addConstraint(Sketcher.Constraint("Equal", 28, 32))
sketch3.addConstraint(Sketcher.Constraint("Equal", 31, 33))
sketch3.addConstraint(Sketcher.Constraint("Equal", 33, 35))
sketch3.addConstraint(Sketcher.Constraint("Radius", 2, Q("5 mm")))
sketch3.addConstraint(Sketcher.Constraint("Angle", 0, Q("7.5 deg")))
sketch3.addConstraint(Sketcher.Constraint("Angle", 4, Q("27.5 deg")))
sketch3.addConstraint(Sketcher.Constraint("Angle", 8, Q("47.5 deg")))
sketch3.addConstraint(Sketcher.Constraint("Angle", 12, Q("67.5 deg")))
sketch3.addConstraint(Sketcher.Constraint("Angle", 16, Q("87.5 deg")))
sketch3.addConstraint(Sketcher.Constraint("Angle", 20, Q("107.5 deg")))
sketch3.addConstraint(Sketcher.Constraint("Angle", 24, Q("127.5 deg")))
sketch3.addConstraint(Sketcher.Constraint("Angle", 28, Q("147.5 deg")))
sketch3.addConstraint(Sketcher.Constraint("Angle", 32, Q("167.5 deg")))
sketch3.addConstraint(Sketcher.Constraint("Distance", 0, Q("0.7 mm")))
sketch3.addConstraint(Sketcher.Constraint("DistanceY", -1, 1, 13, 2, Q("2.5 mm")))
sketch3.addConstraint(Sketcher.Constraint("DistanceX", 5, 2, -1, 1, Q("1.710101 mm")))
sketch3.addConstraint(Sketcher.Constraint("DistanceX", 0, 2, -1, 1, Q("0.436151 mm")))
sketch3.addConstraint(Sketcher.Constraint("DistanceY", -1, 1, 2, 2, Q("4.829629 mm")))
sketch3.addConstraint(Sketcher.Constraint("DistanceY", -1, 1, 6, 2, Q("4.09576 mm")))
sketch3.addConstraint(Sketcher.Constraint("DistanceY", -1, 1, 8, 2, Q("4.311588 mm")))
sketch3.addConstraint(Sketcher.Constraint("DistanceX", 9, 2, -1, 1, Q("3.213938 mm")))
sketch3.addConstraint(Sketcher.Constraint("DistanceY", -1, 1, 12, 2, Q("2.619458 mm")))
sketch3.addConstraint(Sketcher.Constraint("DistanceX", 17, 2, -1, 1, Q("4.924039 mm")))
sketch3.addConstraint(Sketcher.Constraint("DistanceY", 18, 2, -1, 1, Q("0.435779 mm")))
sketch3.addConstraint(Sketcher.Constraint("DistanceX", 20, 2, -1, 1, Q("5.827549 mm")))
sketch3.addConstraint(Sketcher.Constraint("DistanceX", 30, 2, -1, 1, Q("2.113091 mm")))
sketch3.addConstraint(Sketcher.Constraint("DistanceX", 32, 2, -1, 1, Q("1.640341 mm")))
sketch3.addConstraint(Sketcher.Constraint("DistanceX", 24, 2, -1, 1, Q("4.973187 mm")))
pad3 = body.newObject("PartDesign::Pad", "Pad002")
pad3.Profile = sketch3
pad3.Length = 15

doc.recompute()
